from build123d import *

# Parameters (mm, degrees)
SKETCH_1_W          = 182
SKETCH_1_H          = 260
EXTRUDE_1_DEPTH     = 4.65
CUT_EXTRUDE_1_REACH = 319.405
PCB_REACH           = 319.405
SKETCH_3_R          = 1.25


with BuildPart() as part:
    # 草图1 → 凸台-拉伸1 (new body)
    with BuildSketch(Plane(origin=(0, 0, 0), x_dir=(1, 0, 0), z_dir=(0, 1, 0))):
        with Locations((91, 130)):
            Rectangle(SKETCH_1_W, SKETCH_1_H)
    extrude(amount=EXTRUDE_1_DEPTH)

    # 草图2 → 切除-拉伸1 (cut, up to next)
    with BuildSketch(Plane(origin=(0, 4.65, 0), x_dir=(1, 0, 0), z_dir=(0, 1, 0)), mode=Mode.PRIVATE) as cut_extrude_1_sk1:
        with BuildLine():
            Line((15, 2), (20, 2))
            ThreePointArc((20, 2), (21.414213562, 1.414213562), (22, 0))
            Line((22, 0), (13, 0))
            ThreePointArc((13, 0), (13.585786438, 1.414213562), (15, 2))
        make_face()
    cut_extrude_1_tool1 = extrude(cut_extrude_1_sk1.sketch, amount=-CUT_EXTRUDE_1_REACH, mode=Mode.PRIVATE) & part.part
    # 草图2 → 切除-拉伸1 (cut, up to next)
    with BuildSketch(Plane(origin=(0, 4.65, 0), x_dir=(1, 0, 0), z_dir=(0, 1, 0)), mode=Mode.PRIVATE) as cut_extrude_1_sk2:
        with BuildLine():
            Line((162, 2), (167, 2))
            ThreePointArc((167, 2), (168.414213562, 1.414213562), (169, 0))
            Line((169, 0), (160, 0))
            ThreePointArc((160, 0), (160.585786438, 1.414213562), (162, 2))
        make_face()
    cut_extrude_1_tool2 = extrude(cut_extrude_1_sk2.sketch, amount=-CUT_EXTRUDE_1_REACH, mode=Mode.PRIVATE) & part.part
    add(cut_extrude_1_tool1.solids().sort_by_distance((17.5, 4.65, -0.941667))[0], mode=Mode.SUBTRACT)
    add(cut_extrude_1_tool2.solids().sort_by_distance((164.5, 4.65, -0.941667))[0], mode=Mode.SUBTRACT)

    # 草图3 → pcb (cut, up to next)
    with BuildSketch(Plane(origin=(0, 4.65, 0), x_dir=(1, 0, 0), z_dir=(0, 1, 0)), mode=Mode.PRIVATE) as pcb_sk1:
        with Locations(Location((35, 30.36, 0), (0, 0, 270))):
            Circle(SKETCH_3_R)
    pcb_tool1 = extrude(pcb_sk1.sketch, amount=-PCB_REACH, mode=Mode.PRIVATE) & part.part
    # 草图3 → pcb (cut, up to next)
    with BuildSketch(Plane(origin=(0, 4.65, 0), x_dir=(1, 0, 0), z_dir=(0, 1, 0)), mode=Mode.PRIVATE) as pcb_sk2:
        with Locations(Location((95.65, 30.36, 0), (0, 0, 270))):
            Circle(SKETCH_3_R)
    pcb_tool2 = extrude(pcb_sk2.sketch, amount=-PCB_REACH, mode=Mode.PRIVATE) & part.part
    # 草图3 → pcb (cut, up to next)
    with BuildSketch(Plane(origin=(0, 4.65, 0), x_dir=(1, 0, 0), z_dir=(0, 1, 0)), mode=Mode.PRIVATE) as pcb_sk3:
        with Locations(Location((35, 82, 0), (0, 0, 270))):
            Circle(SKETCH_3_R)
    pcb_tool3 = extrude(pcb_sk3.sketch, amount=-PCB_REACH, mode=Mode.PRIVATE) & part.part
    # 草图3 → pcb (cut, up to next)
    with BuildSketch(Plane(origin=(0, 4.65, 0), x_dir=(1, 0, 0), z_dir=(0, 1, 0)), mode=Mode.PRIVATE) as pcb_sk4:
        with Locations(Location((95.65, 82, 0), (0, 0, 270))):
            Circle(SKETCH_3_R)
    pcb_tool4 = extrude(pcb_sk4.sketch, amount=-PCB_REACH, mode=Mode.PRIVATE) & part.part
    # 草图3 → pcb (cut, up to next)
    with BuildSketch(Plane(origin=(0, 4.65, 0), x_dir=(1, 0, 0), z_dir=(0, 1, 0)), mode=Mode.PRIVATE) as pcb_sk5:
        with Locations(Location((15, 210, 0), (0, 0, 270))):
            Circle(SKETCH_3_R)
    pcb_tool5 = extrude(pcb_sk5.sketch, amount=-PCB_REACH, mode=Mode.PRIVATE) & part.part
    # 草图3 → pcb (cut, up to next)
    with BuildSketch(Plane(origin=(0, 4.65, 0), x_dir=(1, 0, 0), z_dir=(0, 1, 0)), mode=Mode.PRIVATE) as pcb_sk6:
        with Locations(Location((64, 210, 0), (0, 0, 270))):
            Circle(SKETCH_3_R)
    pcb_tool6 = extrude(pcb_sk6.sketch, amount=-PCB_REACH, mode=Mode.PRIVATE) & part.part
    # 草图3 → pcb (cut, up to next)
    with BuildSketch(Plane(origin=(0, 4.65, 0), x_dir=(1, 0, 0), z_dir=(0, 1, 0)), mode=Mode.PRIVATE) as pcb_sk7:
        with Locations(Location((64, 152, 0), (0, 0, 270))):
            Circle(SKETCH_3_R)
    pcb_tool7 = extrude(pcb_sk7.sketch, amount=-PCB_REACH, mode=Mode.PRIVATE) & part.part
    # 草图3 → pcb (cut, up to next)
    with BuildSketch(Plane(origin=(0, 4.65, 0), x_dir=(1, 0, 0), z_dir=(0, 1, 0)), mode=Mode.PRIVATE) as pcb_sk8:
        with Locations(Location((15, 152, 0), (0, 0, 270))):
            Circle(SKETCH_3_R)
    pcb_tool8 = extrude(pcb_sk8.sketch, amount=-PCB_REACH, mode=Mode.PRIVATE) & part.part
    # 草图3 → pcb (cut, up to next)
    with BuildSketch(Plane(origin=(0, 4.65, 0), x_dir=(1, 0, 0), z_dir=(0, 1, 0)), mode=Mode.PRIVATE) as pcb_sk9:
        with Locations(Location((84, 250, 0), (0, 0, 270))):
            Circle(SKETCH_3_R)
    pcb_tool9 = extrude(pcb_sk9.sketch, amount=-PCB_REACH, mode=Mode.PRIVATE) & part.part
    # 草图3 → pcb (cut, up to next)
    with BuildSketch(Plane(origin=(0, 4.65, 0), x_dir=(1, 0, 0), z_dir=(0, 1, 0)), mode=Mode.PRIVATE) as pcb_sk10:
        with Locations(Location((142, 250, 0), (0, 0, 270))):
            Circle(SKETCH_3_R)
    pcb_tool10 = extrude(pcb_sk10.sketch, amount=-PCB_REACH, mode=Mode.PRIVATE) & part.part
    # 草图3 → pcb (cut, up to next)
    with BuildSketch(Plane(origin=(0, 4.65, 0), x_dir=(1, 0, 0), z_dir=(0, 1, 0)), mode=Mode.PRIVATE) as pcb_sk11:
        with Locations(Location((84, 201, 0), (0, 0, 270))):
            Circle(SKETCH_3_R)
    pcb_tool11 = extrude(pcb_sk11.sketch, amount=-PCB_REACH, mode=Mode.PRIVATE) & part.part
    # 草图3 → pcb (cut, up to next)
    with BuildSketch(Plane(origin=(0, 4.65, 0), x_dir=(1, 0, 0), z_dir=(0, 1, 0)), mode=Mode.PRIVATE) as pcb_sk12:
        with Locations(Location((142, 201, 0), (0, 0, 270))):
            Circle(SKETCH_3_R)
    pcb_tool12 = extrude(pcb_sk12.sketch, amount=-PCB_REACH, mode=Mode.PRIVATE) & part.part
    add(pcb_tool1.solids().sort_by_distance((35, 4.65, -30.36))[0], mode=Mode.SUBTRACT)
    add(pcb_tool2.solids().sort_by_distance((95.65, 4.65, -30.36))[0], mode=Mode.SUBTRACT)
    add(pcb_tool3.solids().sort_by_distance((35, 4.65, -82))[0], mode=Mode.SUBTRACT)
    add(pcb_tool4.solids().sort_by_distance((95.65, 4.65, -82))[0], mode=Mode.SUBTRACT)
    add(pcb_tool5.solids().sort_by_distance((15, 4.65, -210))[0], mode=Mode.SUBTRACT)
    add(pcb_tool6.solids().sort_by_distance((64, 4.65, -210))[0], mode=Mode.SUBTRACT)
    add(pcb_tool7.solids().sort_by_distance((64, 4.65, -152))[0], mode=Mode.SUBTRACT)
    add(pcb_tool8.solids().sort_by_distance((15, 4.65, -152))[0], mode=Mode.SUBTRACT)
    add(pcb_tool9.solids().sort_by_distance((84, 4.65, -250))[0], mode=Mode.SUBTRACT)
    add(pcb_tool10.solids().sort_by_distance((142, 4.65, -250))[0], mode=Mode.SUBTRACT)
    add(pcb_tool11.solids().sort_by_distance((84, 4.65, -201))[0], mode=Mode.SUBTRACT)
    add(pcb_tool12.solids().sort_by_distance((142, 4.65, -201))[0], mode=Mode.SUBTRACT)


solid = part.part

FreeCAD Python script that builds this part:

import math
import FreeCAD as App
import Part
import Sketcher

V = App.Vector


def add_polygon(sketch, points):
    """Adds a closed chain of lines whose ends are joined by coincident constraints."""
    first, n = sketch.GeometryCount, len(points)
    for a, b in zip(points, points[1:] + points[:1]):
        sketch.addGeometry(Part.LineSegment(App.Vector(*a, 0), App.Vector(*b, 0)), False)
    for i in range(n):
        sketch.addConstraint(Sketcher.Constraint("Coincident", first + i, 2, first + (i + 1) % n, 1))

doc = App.newDocument("Part")
params = doc.addObject("Spreadsheet::Sheet", "Params")
for row, (alias, value) in enumerate([
    ("sketch1_width", "182 mm"),
    ("sketch1_height", "260 mm"),
    ("pad1_length", "4.65 mm"),
    ("sketch2_radius", "2 mm"),
    ("sketch2_width", "5 mm"),
    ("sketch3_radius", "2 mm"),
    ("sketch3_width", "5 mm"),
    ("sketch4_diameter", "2.5 mm"),
    ("sketch5_diameter", "2.5 mm"),
    ("sketch6_diameter", "2.5 mm"),
    ("sketch7_diameter", "2.5 mm"),
    ("sketch8_diameter", "2.5 mm"),
    ("sketch9_diameter", "2.5 mm"),
    ("sketch10_diameter", "2.5 mm"),
    ("sketch11_diameter", "2.5 mm"),
    ("sketch12_diameter", "2.5 mm"),
    ("sketch13_diameter", "2.5 mm"),
    ("sketch14_diameter", "2.5 mm"),
    ("sketch15_diameter", "2.5 mm"),
], start=1):
    params.set(f"A{row}", alias)
    params.set(f"B{row}", "=" + value)
    params.setAlias(f"B{row}", alias)

body = doc.addObject("PartDesign::Body", "Body")

sketch1 = body.newObject("Sketcher::SketchObject", "Sketch")
sketch1.AttachmentSupport = (doc.getObject("XZ_Plane"), [""])
sketch1.MapMode = "FlatFace"
add_polygon(sketch1, [(0, -260), (0, 0), (182, 0), (182, -260)])
sketch1.addConstraint([
    Sketcher.Constraint("Vertical", 0),
    Sketcher.Constraint("Horizontal", 1),
    Sketcher.Constraint("Vertical", 2),
    Sketcher.Constraint("Horizontal", 3),
    Sketcher.Constraint("Coincident", 0, 2, -1, 1),
    Sketcher.Constraint("DistanceX", 1, 1, 1, 2, 182.0),
    Sketcher.Constraint("DistanceY", 0, 1, 0, 2, 260.0),
])
sketch1.setExpression("Constraints[9]", "Params.sketch1_width")
sketch1.setExpression("Constraints[10]", "Params.sketch1_height")
pad1 = body.newObject("PartDesign::Pad", "Pad")
pad1.Profile = sketch1
pad1.setExpression("Length", "Params.pad1_length")
pad1.Reversed = True

sketch2 = body.newObject("Sketcher::SketchObject", "Sketch001")
sketch2.AttachmentSupport = (doc.getObject("XZ_Plane"), [""])
sketch2.MapMode = "FlatFace"
sketch2.AttachmentOffset = App.Placement(V(0, 0, -4.65), App.Rotation())
sketch2.addGeometry([
    Part.LineSegment(V(20, -2, 0), V(15, -2, 0)),
    Part.ArcOfCircle(Part.Circle(V(15, 0, 0), V(0, 0, 1), 2), math.radians(-180), math.radians(-90)),
    Part.LineSegment(V(13, 0, 0), V(22, 0, 0)),
    Part.ArcOfCircle(Part.Circle(V(20, 0, 0), V(0, 0, 1), 2), math.radians(-90), math.radians(0)),
], False)
sketch2.addConstraint([
    Sketcher.Constraint("Tangent", 0, 2, 1, 2),
    Sketcher.Constraint("Coincident", 1, 1, 2, 1),
    Sketcher.Constraint("Coincident", 2, 2, 3, 2),
    Sketcher.Constraint("Tangent", 3, 1, 0, 1),
    Sketcher.Constraint("Horizontal", 0),
    Sketcher.Constraint("Horizontal", 2),
    Sketcher.Constraint("Equal", 1, 3),
    Sketcher.Constraint("PointOnObject", 1, 3, -1),
    Sketcher.Constraint("PointOnObject", 1, 1, -1),
    Sketcher.Constraint("Radius", 1, 2.0),
    Sketcher.Constraint("DistanceX", 0, 2, 0, 1, 5.0),
    Sketcher.Constraint("DistanceX", -1, 1, 1, 3, 15.0),
])
sketch2.setExpression("Constraints[9]", "Params.sketch2_radius")
sketch2.setExpression("Constraints[10]", "Params.sketch2_width")
pocket1 = body.newObject("PartDesign::Pocket", "Pocket")
pocket1.Profile = sketch2
pocket1.Type = "UpToFirst"
pocket1.Reversed = True

sketch3 = body.newObject("Sketcher::SketchObject", "Sketch002")
sketch3.AttachmentSupport = (doc.getObject("XZ_Plane"), [""])
sketch3.MapMode = "FlatFace"
sketch3.AttachmentOffset = App.Placement(V(0, 0, -4.65), App.Rotation())
sketch3.addGeometry([
    Part.LineSegment(V(167, -2, 0), V(162, -2, 0)),
    Part.ArcOfCircle(Part.Circle(V(162, 0, 0), V(0, 0, 1), 2), math.radians(-180), math.radians(-90)),
    Part.LineSegment(V(160, 0, 0), V(169, 0, 0)),
    Part.ArcOfCircle(Part.Circle(V(167, 0, 0), V(0, 0, 1), 2), math.radians(-90), math.radians(0)),
], False)
sketch3.addConstraint([
    Sketcher.Constraint("Tangent", 0, 2, 1, 2),
    Sketcher.Constraint("Coincident", 1, 1, 2, 1),
    Sketcher.Constraint("Coincident", 2, 2, 3, 2),
    Sketcher.Constraint("Tangent", 3, 1, 0, 1),
    Sketcher.Constraint("Horizontal", 0),
    Sketcher.Constraint("Horizontal", 2),
    Sketcher.Constraint("Equal", 1, 3),
    Sketcher.Constraint("PointOnObject", 1, 3, -1),
    Sketcher.Constraint("PointOnObject", 1, 1, -1),
    Sketcher.Constraint("Radius", 1, 2.0),
    Sketcher.Constraint("DistanceX", 0, 2, 0, 1, 5.0),
    Sketcher.Constraint("DistanceX", -1, 1, 1, 3, 162.0),
])
sketch3.setExpression("Constraints[9]", "Params.sketch3_radius")
sketch3.setExpression("Constraints[10]", "Params.sketch3_width")
pocket2 = body.newObject("PartDesign::Pocket", "Pocket001")
pocket2.Profile = sketch3
pocket2.Type = "UpToFirst"
pocket2.Reversed = True

sketch4 = body.newObject("Sketcher::SketchObject", "Sketch003")
sketch4.AttachmentSupport = (doc.getObject("XZ_Plane"), [""])
sketch4.MapMode = "FlatFace"
sketch4.AttachmentOffset = App.Placement(V(0, 0, -4.65), App.Rotation())
sketch4.addGeometry(Part.Circle(V(35, -30.36, 0), V(0, 0, 1), 1.25), False)
sketch4.addConstraint([
    Sketcher.Constraint("Diameter", 0, 2.5),
    Sketcher.Constraint("DistanceX", -1, 1, 0, 3, 35.0),
    Sketcher.Constraint("DistanceY", 0, 3, -1, 1, 30.36),
])
sketch4.setExpression("Constraints[0]", "Params.sketch4_diameter")
pocket3 = body.newObject("PartDesign::Pocket", "Pocket002")
pocket3.Profile = sketch4
pocket3.Type = "UpToFirst"
pocket3.Reversed = True

sketch5 = body.newObject("Sketcher::SketchObject", "Sketch004")
sketch5.AttachmentSupport = (doc.getObject("XZ_Plane"), [""])
sketch5.MapMode = "FlatFace"
sketch5.AttachmentOffset = App.Placement(V(0, 0, -4.65), App.Rotation())
sketch5.addGeometry(Part.Circle(V(95.65, -30.36, 0), V(0, 0, 1), 1.25), False)
sketch5.addConstraint([
    Sketcher.Constraint("Diameter", 0, 2.5),
    Sketcher.Constraint("DistanceX", -1, 1, 0, 3, 95.65),
    Sketcher.Constraint("DistanceY", 0, 3, -1, 1, 30.36),
])
sketch5.setExpression("Constraints[0]", "Params.sketch5_diameter")
pocket4 = body.newObject("PartDesign::Pocket", "Pocket003")
pocket4.Profile = sketch5
pocket4.Type = "UpToFirst"
pocket4.Reversed = True

sketch6 = body.newObject("Sketcher::SketchObject", "Sketch005")
sketch6.AttachmentSupport = (doc.getObject("XZ_Plane"), [""])
sketch6.MapMode = "FlatFace"
sketch6.AttachmentOffset = App.Placement(V(0, 0, -4.65), App.Rotation())
sketch6.addGeometry(Part.Circle(V(35, -82, 0), V(0, 0, 1), 1.25), False)
sketch6.addConstraint([
    Sketcher.Constraint("Diameter", 0, 2.5),
    Sketcher.Constraint("DistanceX", -1, 1, 0, 3, 35.0),
    Sketcher.Constraint("DistanceY", 0, 3, -1, 1, 82.0),
])
sketch6.setExpression("Constraints[0]", "Params.sketch6_diameter")
pocket5 = body.newObject("PartDesign::Pocket", "Pocket004")
pocket5.Profile = sketch6
pocket5.Type = "UpToFirst"
pocket5.Reversed = True

sketch7 = body.newObject("Sketcher::SketchObject", "Sketch006")
sketch7.AttachmentSupport = (doc.getObject("XZ_Plane"), [""])
sketch7.MapMode = "FlatFace"
sketch7.AttachmentOffset = App.Placement(V(0, 0, -4.65), App.Rotation())
sketch7.addGeometry(Part.Circle(V(95.65, -82, 0), V(0, 0, 1), 1.25), False)
sketch7.addConstraint([
    Sketcher.Constraint("Diameter", 0, 2.5),
    Sketcher.Constraint("DistanceY", 0, 3, -1, 1, 82.0),
    Sketcher.Constraint("DistanceX", -1, 1, 0, 3, 95.65),
])
sketch7.setExpression("Constraints[0]", "Params.sketch7_diameter")
pocket6 = body.newObject("PartDesign::Pocket", "Pocket005")
pocket6.Profile = sketch7
pocket6.Type = "UpToFirst"
pocket6.Reversed = True

sketch8 = body.newObject("Sketcher::SketchObject", "Sketch007")
sketch8.AttachmentSupport = (doc.getObject("XZ_Plane"), [""])
sketch8.MapMode = "FlatFace"
sketch8.AttachmentOffset = App.Placement(V(0, 0, -4.65), App.Rotation())
sketch8.addGeometry(Part.Circle(V(15, -210, 0), V(0, 0, 1), 1.25), False)
sketch8.addConstraint([
    Sketcher.Constraint("Diameter", 0, 2.5),
    Sketcher.Constraint("DistanceX", -1, 1, 0, 3, 15.0),
    Sketcher.Constraint("DistanceY", 0, 3, -1, 1, 210.0),
])
sketch8.setExpression("Constraints[0]", "Params.sketch8_diameter")
pocket7 = body.newObject("PartDesign::Pocket", "Pocket006")
pocket7.Profile = sketch8
pocket7.Type = "UpToFirst"
pocket7.Reversed = True

sketch9 = body.newObject("Sketcher::SketchObject", "Sketch008")
sketch9.AttachmentSupport = (doc.getObject("XZ_Plane"), [""])
sketch9.MapMode = "FlatFace"
sketch9.AttachmentOffset = App.Placement(V(0, 0, -4.65), App.Rotation())
sketch9.addGeometry(Part.Circle(V(64, -210, 0), V(0, 0, 1), 1.25), False)
sketch9.addConstraint([
    Sketcher.Constraint("Diameter", 0, 2.5),
    Sketcher.Constraint("DistanceX", -1, 1, 0, 3, 64.0),
    Sketcher.Constraint("DistanceY", 0, 3, -1, 1, 210.0),
])
sketch9.setExpression("Constraints[0]", "Params.sketch9_diameter")
pocket8 = body.newObject("PartDesign::Pocket", "Pocket007")
pocket8.Profile = sketch9
pocket8.Type = "UpToFirst"
pocket8.Reversed = True

sketch10 = body.newObject("Sketcher::SketchObject", "Sketch009")
sketch10.AttachmentSupport = (doc.getObject("XZ_Plane"), [""])
sketch10.MapMode = "FlatFace"
sketch10.AttachmentOffset = App.Placement(V(0, 0, -4.65), App.Rotation())
sketch10.addGeometry(Part.Circle(V(64, -152, 0), V(0, 0, 1), 1.25), False)
sketch10.addConstraint([
    Sketcher.Constraint("Diameter", 0, 2.5),
    Sketcher.Constraint("DistanceX", -1, 1, 0, 3, 64.0),
    Sketcher.Constraint("DistanceY", 0, 3, -1, 1, 152.0),
])
sketch10.setExpression("Constraints[0]", "Params.sketch10_diameter")
pocket9 = body.newObject("PartDesign::Pocket", "Pocket008")
pocket9.Profile = sketch10
pocket9.Type = "UpToFirst"
pocket9.Reversed = True

sketch11 = body.newObject("Sketcher::SketchObject", "Sketch010")
sketch11.AttachmentSupport = (doc.getObject("XZ_Plane"), [""])
sketch11.MapMode = "FlatFace"
sketch11.AttachmentOffset = App.Placement(V(0, 0, -4.65), App.Rotation())
sketch11.addGeometry(Part.Circle(V(15, -152, 0), V(0, 0, 1), 1.25), False)
sketch11.addConstraint([
    Sketcher.Constraint("Diameter", 0, 2.5),
    Sketcher.Constraint("DistanceX", -1, 1, 0, 3, 15.0),
    Sketcher.Constraint("DistanceY", 0, 3, -1, 1, 152.0),
])
sketch11.setExpression("Constraints[0]", "Params.sketch11_diameter")
pocket10 = body.newObject("PartDesign::Pocket", "Pocket009")
pocket10.Profile = sketch11
pocket10.Type = "UpToFirst"
pocket10.Reversed = True

sketch12 = body.newObject("Sketcher::SketchObject", "Sketch011")
sketch12.AttachmentSupport = (doc.getObject("XZ_Plane"), [""])
sketch12.MapMode = "FlatFace"
sketch12.AttachmentOffset = App.Placement(V(0, 0, -4.65), App.Rotation())
sketch12.addGeometry(Part.Circle(V(84, -250, 0), V(0, 0, 1), 1.25), False)
sketch12.addConstraint([
    Sketcher.Constraint("Diameter", 0, 2.5),
    Sketcher.Constraint("DistanceX", -1, 1, 0, 3, 84.0),
    Sketcher.Constraint("DistanceY", 0, 3, -1, 1, 250.0),
])
sketch12.setExpression("Constraints[0]", "Params.sketch12_diameter")
pocket11 = body.newObject("PartDesign::Pocket", "Pocket010")
pocket11.Profile = sketch12
pocket11.Type = "UpToFirst"
pocket11.Reversed = True

sketch13 = body.newObject("Sketcher::SketchObject", "Sketch012")
sketch13.AttachmentSupport = (doc.getObject("XZ_Plane"), [""])
sketch13.MapMode = "FlatFace"
sketch13.AttachmentOffset = App.Placement(V(0, 0, -4.65), App.Rotation())
sketch13.addGeometry(Part.Circle(V(142, -250, 0), V(0, 0, 1), 1.25), False)
sketch13.addConstraint([
    Sketcher.Constraint("Diameter", 0, 2.5),
    Sketcher.Constraint("DistanceX", -1, 1, 0, 3, 142.0),
    Sketcher.Constraint("DistanceY", 0, 3, -1, 1, 250.0),
])
sketch13.setExpression("Constraints[0]", "Params.sketch13_diameter")
pocket12 = body.newObject("PartDesign::Pocket", "Pocket011")
pocket12.Profile = sketch13
pocket12.Type = "UpToFirst"
pocket12.Reversed = True

sketch14 = body.newObject("Sketcher::SketchObject", "Sketch013")
sketch14.AttachmentSupport = (doc.getObject("XZ_Plane"), [""])
sketch14.MapMode = "FlatFace"
sketch14.AttachmentOffset = App.Placement(V(0, 0, -4.65), App.Rotation())
sketch14.addGeometry(Part.Circle(V(84, -201, 0), V(0, 0, 1), 1.25), False)
sketch14.addConstraint([
    Sketcher.Constraint("Diameter", 0, 2.5),
    Sketcher.Constraint("DistanceX", -1, 1, 0, 3, 84.0),
    Sketcher.Constraint("DistanceY", 0, 3, -1, 1, 201.0),
])
sketch14.setExpression("Constraints[0]", "Params.sketch14_diameter")
pocket13 = body.newObject("PartDesign::Pocket", "Pocket012")
pocket13.Profile = sketch14
pocket13.Type = "UpToFirst"
pocket13.Reversed = True

sketch15 = body.newObject("Sketcher::SketchObject", "Sketch014")
sketch15.AttachmentSupport = (doc.getObject("XZ_Plane"), [""])
sketch15.MapMode = "FlatFace"
sketch15.AttachmentOffset = App.Placement(V(0, 0, -4.65), App.Rotation())
sketch15.addGeometry(Part.Circle(V(142, -201, 0), V(0, 0, 1), 1.25), False)
sketch15.addConstraint([
    Sketcher.Constraint("Diameter", 0, 2.5),
    Sketcher.Constraint("DistanceX", -1, 1, 0, 3, 142.0),
    Sketcher.Constraint("DistanceY", 0, 3, -1, 1, 201.0),
])
sketch15.setExpression("Constraints[0]", "Params.sketch15_diameter")
pocket14 = body.newObject("PartDesign::Pocket", "Pocket013")
pocket14.Profile = sketch15
pocket14.Type = "UpToFirst"
pocket14.Reversed = True

doc.recompute()
